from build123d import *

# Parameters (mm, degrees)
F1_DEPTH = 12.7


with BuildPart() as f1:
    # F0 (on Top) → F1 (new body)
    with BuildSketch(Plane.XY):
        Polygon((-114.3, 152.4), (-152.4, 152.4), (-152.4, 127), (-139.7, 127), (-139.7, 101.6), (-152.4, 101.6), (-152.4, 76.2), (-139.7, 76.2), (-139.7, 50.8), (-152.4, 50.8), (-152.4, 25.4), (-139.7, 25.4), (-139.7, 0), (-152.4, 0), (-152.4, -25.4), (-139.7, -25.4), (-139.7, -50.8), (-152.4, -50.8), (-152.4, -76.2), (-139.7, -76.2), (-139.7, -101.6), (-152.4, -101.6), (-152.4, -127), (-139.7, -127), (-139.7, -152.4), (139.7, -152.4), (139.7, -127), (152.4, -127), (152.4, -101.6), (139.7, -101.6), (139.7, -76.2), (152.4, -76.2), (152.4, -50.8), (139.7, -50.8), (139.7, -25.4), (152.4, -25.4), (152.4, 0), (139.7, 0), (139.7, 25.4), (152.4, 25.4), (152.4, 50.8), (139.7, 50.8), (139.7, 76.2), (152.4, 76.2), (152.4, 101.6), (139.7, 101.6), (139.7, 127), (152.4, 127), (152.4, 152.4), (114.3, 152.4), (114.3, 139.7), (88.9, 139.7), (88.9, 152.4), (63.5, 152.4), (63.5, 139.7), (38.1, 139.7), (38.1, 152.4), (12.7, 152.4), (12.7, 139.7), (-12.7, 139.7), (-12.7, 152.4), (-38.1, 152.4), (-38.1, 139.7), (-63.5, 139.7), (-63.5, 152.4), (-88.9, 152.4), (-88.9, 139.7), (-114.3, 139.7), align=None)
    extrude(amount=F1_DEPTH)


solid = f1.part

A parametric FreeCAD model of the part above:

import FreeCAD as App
import Part
import Sketcher

V = App.Vector
Q = App.Units.Quantity


def add_polygon(sketch, points):
    """Adds a closed chain of lines whose ends are joined by coincident constraints."""
    first, n = sketch.GeometryCount, len(points)
    for a, b in zip(points, points[1:] + points[:1]):
        sketch.addGeometry(Part.LineSegment(App.Vector(*a, 0), App.Vector(*b, 0)), False)
    for i in range(n):
        sketch.addConstraint(Sketcher.Constraint("Coincident", first + i, 2, first + (i + 1) % n, 1))

doc = App.newDocument("Part")
body = doc.addObject("PartDesign::Body", "Body")

sketch1 = body.newObject("Sketcher::SketchObject", "Sketch")
sketch1.AttachmentSupport = (doc.getObject("XY_Plane"), [""])
sketch1.MapMode = "FlatFace"
add_polygon(sketch1, [(-114, 152), (-152, 152), (-152, 127), (-140, 127), (-140, 102), (-152, 102), (-152, 76), (-140, 76), (-140, 51), (-152, 51), (-152, 25), (-140, 25), (-140, 0), (-152, 0), (-152, -25), (-140, -25), (-140, -51), (-152, -51), (-152, -76), (-140, -76), (-140, -102), (-152, -102), (-152, -127), (-140, -127), (-140, -152), (140, -152), (140, -127), (152, -127), (152, -102), (140, -102), (140, -76), (152, -76), (152, -51), (140, -51), (140, -25), (152, -25), (152, 0), (140, 0), (140, 25), (152, 25), (152, 51), (140, 51), (140, 76), (152, 76), (152, 102), (140, 102), (140, 127), (152, 127), (152, 152), (114, 152), (114, 140), (89, 140), (89, 152), (64, 152), (64, 140), (38, 140), (38, 152), (13, 152), (13, 140), (-13, 140), (-13, 152), (-38, 152), (-38, 140), (-64, 140), (-64, 152), (-89, 152), (-89, 140), (-114, 140)])
sketch1.addConstraint(Sketcher.Constraint("Horizontal", 0))
sketch1.addConstraint(Sketcher.Constraint("Vertical", 1))
sketch1.addConstraint(Sketcher.Constraint("Horizontal", 2))
sketch1.addConstraint(Sketcher.Constraint("Vertical", 3))
sketch1.addConstraint(Sketcher.Constraint("Horizontal", 4))
sketch1.addConstraint(Sketcher.Constraint("Vertical", 5))
sketch1.addConstraint(Sketcher.Constraint("Horizontal", 6))
sketch1.addConstraint(Sketcher.Constraint("Vertical", 7))
sketch1.addConstraint(Sketcher.Constraint("Horizontal", 8))
sketch1.addConstraint(Sketcher.Constraint("Vertical", 9))
sketch1.addConstraint(Sketcher.Constraint("Horizontal", 10))
sketch1.addConstraint(Sketcher.Constraint("Vertical", 11))
sketch1.addConstraint(Sketcher.Constraint("Horizontal", 12))
sketch1.addConstraint(Sketcher.Constraint("Vertical", 13))
sketch1.addConstraint(Sketcher.Constraint("Horizontal", 14))
sketch1.addConstraint(Sketcher.Constraint("Vertical", 15))
sketch1.addConstraint(Sketcher.Constraint("Horizontal", 16))
sketch1.addConstraint(Sketcher.Constraint("Vertical", 17))
sketch1.addConstraint(Sketcher.Constraint("Horizontal", 18))
sketch1.addConstraint(Sketcher.Constraint("Vertical", 19))
sketch1.addConstraint(Sketcher.Constraint("Horizontal", 20))
sketch1.addConstraint(Sketcher.Constraint("Vertical", 21))
sketch1.addConstraint(Sketcher.Constraint("Horizontal", 22))
sketch1.addConstraint(Sketcher.Constraint("Vertical", 23))
sketch1.addConstraint(Sketcher.Constraint("Horizontal", 24))
sketch1.addConstraint(Sketcher.Constraint("Vertical", 25))
sketch1.addConstraint(Sketcher.Constraint("Horizontal", 26))
sketch1.addConstraint(Sketcher.Constraint("Vertical", 27))
sketch1.addConstraint(Sketcher.Constraint("Horizontal", 28))
sketch1.addConstraint(Sketcher.Constraint("Vertical", 29))
sketch1.addConstraint(Sketcher.Constraint("Horizontal", 30))
sketch1.addConstraint(Sketcher.Constraint("Vertical", 31))
sketch1.addConstraint(Sketcher.Constraint("Horizontal", 32))
sketch1.addConstraint(Sketcher.Constraint("Vertical", 33))
sketch1.addConstraint(Sketcher.Constraint("Horizontal", 34))
sketch1.addConstraint(Sketcher.Constraint("Vertical", 35))
sketch1.addConstraint(Sketcher.Constraint("Horizontal", 36))
sketch1.addConstraint(Sketcher.Constraint("Vertical", 37))
sketch1.addConstraint(Sketcher.Constraint("Horizontal", 38))
sketch1.addConstraint(Sketcher.Constraint("Vertical", 39))
sketch1.addConstraint(Sketcher.Constraint("Horizontal", 40))
sketch1.addConstraint(Sketcher.Constraint("Vertical", 41))
sketch1.addConstraint(Sketcher.Constraint("Horizontal", 42))
sketch1.addConstraint(Sketcher.Constraint("Vertical", 43))
sketch1.addConstraint(Sketcher.Constraint("Horizontal", 44))
sketch1.addConstraint(Sketcher.Constraint("Vertical", 45))
sketch1.addConstraint(Sketcher.Constraint("Horizontal", 46))
sketch1.addConstraint(Sketcher.Constraint("Vertical", 47))
sketch1.addConstraint(Sketcher.Constraint("Horizontal", 48))
sketch1.addConstraint(Sketcher.Constraint("Vertical", 49))
sketch1.addConstraint(Sketcher.Constraint("Horizontal", 50))
sketch1.addConstraint(Sketcher.Constraint("Vertical", 51))
sketch1.addConstraint(Sketcher.Constraint("Horizontal", 52))
sketch1.addConstraint(Sketcher.Constraint("Vertical", 53))
sketch1.addConstraint(Sketcher.Constraint("Horizontal", 54))
sketch1.addConstraint(Sketcher.Constraint("Vertical", 55))
sketch1.addConstraint(Sketcher.Constraint("Horizontal", 56))
sketch1.addConstraint(Sketcher.Constraint("Vertical", 57))
sketch1.addConstraint(Sketcher.Constraint("Horizontal", 58))
sketch1.addConstraint(Sketcher.Constraint("Vertical", 59))
sketch1.addConstraint(Sketcher.Constraint("Horizontal", 60))
sketch1.addConstraint(Sketcher.Constraint("Vertical", 61))
sketch1.addConstraint(Sketcher.Constraint("Horizontal", 62))
sketch1.addConstraint(Sketcher.Constraint("Vertical", 63))
sketch1.addConstraint(Sketcher.Constraint("Horizontal", 64))
sketch1.addConstraint(Sketcher.Constraint("Vertical", 65))
sketch1.addConstraint(Sketcher.Constraint("Horizontal", 66))
sketch1.addConstraint(Sketcher.Constraint("Vertical", 67))
sketch1.addConstraint(Sketcher.Constraint("Symmetric", 2, 2, 25, 2, -1, 1))
sketch1.addConstraint(Sketcher.Constraint("Symmetric", 4, 2, 27, 2, -1, 1))
sketch1.addConstraint(Sketcher.Constraint("Symmetric", 6, 2, 29, 2, -1, 1))
sketch1.addConstraint(Sketcher.Constraint("Symmetric", 8, 2, 31, 2, -1, 1))
sketch1.addConstraint(Sketcher.Constraint("Symmetric", 10, 2, 33, 2, -1, 1))
sketch1.addConstraint(Sketcher.Constraint("Symmetric", 12, 2, 35, 2, -1, 1))
sketch1.addConstraint(Sketcher.Constraint("Symmetric", 14, 2, 37, 2, -1, 1))
sketch1.addConstraint(Sketcher.Constraint("Symmetric", 16, 2, 39, 2, -1, 1))
sketch1.addConstraint(Sketcher.Constraint("Symmetric", 18, 2, 41, 2, -1, 1))
sketch1.addConstraint(Sketcher.Constraint("Symmetric", 20, 2, 43, 2, -1, 1))
sketch1.addConstraint(Sketcher.Constraint("Symmetric", 22, 2, 45, 2, -1, 1))
sketch1.addConstraint(Sketcher.Constraint("Symmetric", 22, 2, 25, 2, -2))
sketch1.addConstraint(Sketcher.Constraint("Symmetric", 20, 2, 27, 2, -2))
sketch1.addConstraint(Sketcher.Constraint("Symmetric", 18, 2, 29, 2, -2))
sketch1.addConstraint(Sketcher.Constraint("Symmetric", 16, 2, 31, 2, -2))
sketch1.addConstraint(Sketcher.Constraint("Symmetric", 14, 2, 33, 2, -2))
sketch1.addConstraint(Sketcher.Constraint("Symmetric", 0, 2, 47, 2, -2))
sketch1.addConstraint(Sketcher.Constraint("Symmetric", 56, 2, 59, 2, -2))
sketch1.addConstraint(Sketcher.Constraint("Symmetric", 54, 2, 61, 2, -2))
sketch1.addConstraint(Sketcher.Constraint("Symmetric", 52, 2, 63, 2, -2))
sketch1.addConstraint(Sketcher.Constraint("Symmetric", 50, 2, 65, 2, -2))
sketch1.addConstraint(Sketcher.Constraint("PointOnObject", 11, 2, -1))
sketch1.addConstraint(Sketcher.Constraint("Horizontal", 48, 2, 51, 2))
sketch1.addConstraint(Sketcher.Constraint("Horizontal", 50, 2, 53, 2))
sketch1.addConstraint(Sketcher.Constraint("Horizontal", 52, 2, 55, 2))
sketch1.addConstraint(Sketcher.Constraint("Horizontal", 54, 2, 57, 2))
sketch1.addConstraint(Sketcher.Constraint("Vertical", 1, 2, 4, 2))
sketch1.addConstraint(Sketcher.Constraint("Vertical", 3, 2, 6, 2))
sketch1.addConstraint(Sketcher.Constraint("Vertical", 5, 2, 8, 2))
sketch1.addConstraint(Sketcher.Constraint("Vertical", 7, 2, 10, 2))
sketch1.addConstraint(Sketcher.Constraint("Vertical", 9, 2, 12, 2))
sketch1.addConstraint(Sketcher.Constraint("Equal", 0, 48))
sketch1.addConstraint(Sketcher.Constraint("Equal", 50, 52))
sketch1.addConstraint(Sketcher.Constraint("Equal", 52, 54))
sketch1.addConstraint(Sketcher.Constraint("Equal", 54, 56))
sketch1.addConstraint(Sketcher.Constraint("Equal", 56, 58))
sketch1.addConstraint(Sketcher.Constraint("Equal", 66, 1))
sketch1.addConstraint(Sketcher.Constraint("Equal", 1, 3))
sketch1.addConstraint(Sketcher.Constraint("Equal", 3, 5))
sketch1.addConstraint(Sketcher.Constraint("Equal", 5, 7))
sketch1.addConstraint(Sketcher.Constraint("Equal", 7, 9))
sketch1.addConstraint(Sketcher.Constraint("Equal", 9, 11))
sketch1.addConstraint(Sketcher.Constraint("Equal", 21, 23))
sketch1.addConstraint(Sketcher.Constraint("Equal", 46, 49))
sketch1.addConstraint(Sketcher.Constraint("DistanceX", 24, 1, 24, 2, Q("11 in")))
sketch1.addConstraint(Sketcher.Constraint("DistanceX", 50, 2, 50, 1, Q("1 in")))
sketch1.addConstraint(Sketcher.Constraint("DistanceX", 0, 2, 0, 1, Q("1.5 in")))
pad1 = body.newObject("PartDesign::Pad", "Pad")
pad1.Profile = sketch1
pad1.Length = Q("0.5 in")

doc.recompute()
